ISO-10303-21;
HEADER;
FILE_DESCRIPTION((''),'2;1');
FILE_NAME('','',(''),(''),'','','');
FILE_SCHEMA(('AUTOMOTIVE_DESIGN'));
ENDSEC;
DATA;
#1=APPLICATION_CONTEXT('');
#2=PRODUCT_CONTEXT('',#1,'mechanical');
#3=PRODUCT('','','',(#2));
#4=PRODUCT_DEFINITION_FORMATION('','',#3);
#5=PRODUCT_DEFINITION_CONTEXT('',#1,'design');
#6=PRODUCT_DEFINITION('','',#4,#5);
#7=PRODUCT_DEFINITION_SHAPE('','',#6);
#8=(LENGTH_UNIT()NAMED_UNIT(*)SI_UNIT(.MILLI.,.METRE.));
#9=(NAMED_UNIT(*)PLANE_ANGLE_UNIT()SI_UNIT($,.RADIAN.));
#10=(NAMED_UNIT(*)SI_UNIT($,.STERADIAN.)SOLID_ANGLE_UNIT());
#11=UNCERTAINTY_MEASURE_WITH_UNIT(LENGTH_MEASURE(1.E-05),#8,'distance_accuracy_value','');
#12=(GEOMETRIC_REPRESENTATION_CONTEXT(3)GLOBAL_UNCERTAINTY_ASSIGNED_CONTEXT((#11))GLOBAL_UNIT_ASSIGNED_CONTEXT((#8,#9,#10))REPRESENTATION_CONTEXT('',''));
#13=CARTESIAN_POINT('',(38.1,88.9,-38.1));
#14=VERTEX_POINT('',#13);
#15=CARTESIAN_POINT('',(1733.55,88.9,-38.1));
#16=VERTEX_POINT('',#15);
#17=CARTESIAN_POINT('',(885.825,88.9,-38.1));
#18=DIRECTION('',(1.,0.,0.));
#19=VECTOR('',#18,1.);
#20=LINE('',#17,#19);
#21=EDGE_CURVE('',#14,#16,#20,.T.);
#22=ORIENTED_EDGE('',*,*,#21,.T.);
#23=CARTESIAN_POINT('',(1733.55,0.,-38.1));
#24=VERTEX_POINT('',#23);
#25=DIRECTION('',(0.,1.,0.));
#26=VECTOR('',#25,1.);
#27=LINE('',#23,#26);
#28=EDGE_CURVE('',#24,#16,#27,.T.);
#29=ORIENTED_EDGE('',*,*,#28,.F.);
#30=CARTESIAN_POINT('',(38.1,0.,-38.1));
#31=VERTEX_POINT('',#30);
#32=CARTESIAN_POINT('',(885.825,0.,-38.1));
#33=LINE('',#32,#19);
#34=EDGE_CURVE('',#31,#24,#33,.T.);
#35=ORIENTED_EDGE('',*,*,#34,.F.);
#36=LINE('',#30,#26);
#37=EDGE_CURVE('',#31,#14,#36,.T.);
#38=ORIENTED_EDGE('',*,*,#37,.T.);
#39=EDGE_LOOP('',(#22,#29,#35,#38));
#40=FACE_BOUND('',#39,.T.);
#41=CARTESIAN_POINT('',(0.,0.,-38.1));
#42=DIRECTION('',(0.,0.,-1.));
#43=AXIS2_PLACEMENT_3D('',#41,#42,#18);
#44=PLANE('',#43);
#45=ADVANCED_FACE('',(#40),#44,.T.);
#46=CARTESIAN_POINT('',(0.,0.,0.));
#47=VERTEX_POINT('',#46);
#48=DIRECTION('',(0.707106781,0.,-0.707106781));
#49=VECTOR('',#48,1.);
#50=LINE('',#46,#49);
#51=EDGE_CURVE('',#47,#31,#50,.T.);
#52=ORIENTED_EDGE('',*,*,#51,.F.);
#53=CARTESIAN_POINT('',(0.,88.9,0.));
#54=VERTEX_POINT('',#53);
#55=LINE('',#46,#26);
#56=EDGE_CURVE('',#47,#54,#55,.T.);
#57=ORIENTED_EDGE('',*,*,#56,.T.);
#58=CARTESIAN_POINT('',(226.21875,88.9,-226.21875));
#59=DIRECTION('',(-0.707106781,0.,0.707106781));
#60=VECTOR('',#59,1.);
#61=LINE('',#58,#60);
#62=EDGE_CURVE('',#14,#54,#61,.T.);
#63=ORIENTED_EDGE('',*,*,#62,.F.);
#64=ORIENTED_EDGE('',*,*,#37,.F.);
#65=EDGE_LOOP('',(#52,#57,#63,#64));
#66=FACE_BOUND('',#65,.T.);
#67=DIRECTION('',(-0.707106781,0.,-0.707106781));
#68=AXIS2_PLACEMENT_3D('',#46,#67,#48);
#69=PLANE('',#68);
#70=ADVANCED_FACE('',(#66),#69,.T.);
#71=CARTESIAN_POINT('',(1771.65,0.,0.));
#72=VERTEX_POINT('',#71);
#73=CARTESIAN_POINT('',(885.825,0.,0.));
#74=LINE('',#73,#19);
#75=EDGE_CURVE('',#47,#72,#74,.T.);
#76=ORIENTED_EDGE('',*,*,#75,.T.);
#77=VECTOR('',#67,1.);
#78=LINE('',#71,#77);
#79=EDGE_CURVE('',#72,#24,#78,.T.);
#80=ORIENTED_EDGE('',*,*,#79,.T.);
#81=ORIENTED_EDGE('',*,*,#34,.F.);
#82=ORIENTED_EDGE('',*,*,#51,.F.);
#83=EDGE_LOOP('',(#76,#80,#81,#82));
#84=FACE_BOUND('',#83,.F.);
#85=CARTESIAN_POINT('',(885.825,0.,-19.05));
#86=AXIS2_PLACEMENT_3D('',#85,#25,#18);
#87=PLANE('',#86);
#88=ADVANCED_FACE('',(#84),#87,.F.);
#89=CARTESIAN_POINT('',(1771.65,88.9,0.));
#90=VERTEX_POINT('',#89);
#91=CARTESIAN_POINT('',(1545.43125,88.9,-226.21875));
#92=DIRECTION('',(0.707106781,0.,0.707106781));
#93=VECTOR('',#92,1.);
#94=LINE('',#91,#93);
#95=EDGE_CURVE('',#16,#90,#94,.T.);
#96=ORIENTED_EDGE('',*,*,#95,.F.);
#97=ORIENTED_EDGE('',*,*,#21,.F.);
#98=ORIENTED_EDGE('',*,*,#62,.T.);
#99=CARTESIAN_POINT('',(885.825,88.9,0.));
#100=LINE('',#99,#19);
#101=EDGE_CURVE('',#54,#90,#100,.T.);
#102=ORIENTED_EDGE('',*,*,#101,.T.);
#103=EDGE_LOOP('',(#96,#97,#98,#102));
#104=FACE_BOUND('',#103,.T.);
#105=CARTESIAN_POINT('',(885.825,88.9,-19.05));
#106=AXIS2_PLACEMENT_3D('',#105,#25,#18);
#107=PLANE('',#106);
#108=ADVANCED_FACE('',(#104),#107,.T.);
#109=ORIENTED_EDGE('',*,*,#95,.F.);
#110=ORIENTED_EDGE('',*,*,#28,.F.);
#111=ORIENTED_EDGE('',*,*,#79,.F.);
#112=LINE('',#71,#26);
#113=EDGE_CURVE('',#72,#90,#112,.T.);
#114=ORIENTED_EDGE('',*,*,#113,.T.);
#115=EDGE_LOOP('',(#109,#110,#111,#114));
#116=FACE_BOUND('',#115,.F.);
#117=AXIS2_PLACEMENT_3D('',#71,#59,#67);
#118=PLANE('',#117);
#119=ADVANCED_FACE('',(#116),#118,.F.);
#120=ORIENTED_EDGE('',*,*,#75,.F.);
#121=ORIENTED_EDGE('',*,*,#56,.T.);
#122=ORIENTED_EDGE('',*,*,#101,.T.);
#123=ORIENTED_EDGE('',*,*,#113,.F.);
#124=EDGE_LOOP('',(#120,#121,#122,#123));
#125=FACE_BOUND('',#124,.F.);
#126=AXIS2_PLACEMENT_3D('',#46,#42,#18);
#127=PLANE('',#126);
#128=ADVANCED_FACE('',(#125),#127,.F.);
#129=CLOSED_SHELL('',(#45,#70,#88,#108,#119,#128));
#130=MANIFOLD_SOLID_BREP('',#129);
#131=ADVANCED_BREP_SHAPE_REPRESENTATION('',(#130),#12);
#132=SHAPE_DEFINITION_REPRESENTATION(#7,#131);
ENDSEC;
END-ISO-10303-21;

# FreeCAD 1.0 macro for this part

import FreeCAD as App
import Part
import Sketcher
Q = App.Units.Quantity


def add_polygon(sketch, points):
    """Adds a closed chain of lines whose ends are joined by coincident constraints."""
    first, n = sketch.GeometryCount, len(points)
    for a, b in zip(points, points[1:] + points[:1]):
        sketch.addGeometry(Part.LineSegment(App.Vector(*a, 0), App.Vector(*b, 0)), False)
    for i in range(n):
        sketch.addConstraint(Sketcher.Constraint("Coincident", first + i, 2, first + (i + 1) % n, 1))

doc = App.newDocument("Part")
params = doc.addObject("Spreadsheet::Sheet", "Params")
for row, (alias, value) in enumerate([
    ("sketch1_height", "1.5 in"),
    ("sketch1_width", "69.75 in"),
    ("pad1_length", "3.5 in"),
    ("sketch2_width", "1.5 in"),
], start=1):
    params.set(f"A{row}", alias)
    params.set(f"B{row}", "=" + value)
    params.setAlias(f"B{row}", alias)

body = doc.addObject("PartDesign::Body", "Body")

# Sketch on XZ plane
sketch1 = body.newObject("Sketcher::SketchObject", "Sketch")
sketch1.AttachmentSupport = (doc.getObject("XZ_Plane"), [""])
sketch1.MapMode = "FlatFace"
add_polygon(sketch1, [(0, -38), (0, 0), (1772, 0), (1772, -38)])  # lines 0-3
sketch1.addConstraint([
    Sketcher.Constraint("Vertical", 0),
    Sketcher.Constraint("Horizontal", 1),
    Sketcher.Constraint("Vertical", 2),
    Sketcher.Constraint("Horizontal", 3),
    Sketcher.Constraint("Coincident", 0, 2, -1, 1),
    Sketcher.Constraint("DistanceY", 0, 1, 0, 2, Q("1.5 in")),
    Sketcher.Constraint("DistanceX", 1, 1, 1, 2, Q("69.75 in")),
])
sketch1.setExpression("Constraints[9]", "Params.sketch1_height")
sketch1.setExpression("Constraints[10]", "Params.sketch1_width")
pad1 = body.newObject("PartDesign::Pad", "Pad")
pad1.Profile = sketch1
pad1.setExpression("Length", "Params.pad1_length")
pad1.Reversed = True

# Sketch on XZ plane
sketch2 = body.newObject("Sketcher::SketchObject", "Sketch001")
sketch2.AttachmentSupport = (doc.getObject("XZ_Plane"), [""])
sketch2.MapMode = "FlatFace"
add_polygon(sketch2, [(0, 0), (38, -38), (0, -38)])  # lines 0-2
add_polygon(sketch2, [(1734, -38), (1772, 0), (1772, -38)])  # lines 3-5
sketch2.addConstraint([
    Sketcher.Constraint("Horizontal", 1),
    Sketcher.Constraint("Vertical", 2),
    Sketcher.Constraint("Vertical", 4),
    Sketcher.Constraint("Horizontal", 5),
    Sketcher.Constraint("Coincident", 2, 2, -1, 1),
    Sketcher.Constraint("PointOnObject", 3, 2, -1),
    Sketcher.Constraint("Perpendicular", 0, 3),
    Sketcher.Constraint("Horizontal", 1, 2, 4, 2),
    Sketcher.Constraint("Equal", 1, 5),
    Sketcher.Constraint("DistanceX", 1, 2, 1, 1, Q("1.5 in")),
    Sketcher.Constraint("DistanceX", -1, 1, 3, 2, Q("69.75 in")),
])
sketch2.setExpression("Constraints[15]", "Params.sketch2_width")
pocket1 = body.newObject("PartDesign::Pocket", "Pocket")
pocket1.Profile = sketch2
pocket1.Type = "ThroughAll"

doc.recompute()
